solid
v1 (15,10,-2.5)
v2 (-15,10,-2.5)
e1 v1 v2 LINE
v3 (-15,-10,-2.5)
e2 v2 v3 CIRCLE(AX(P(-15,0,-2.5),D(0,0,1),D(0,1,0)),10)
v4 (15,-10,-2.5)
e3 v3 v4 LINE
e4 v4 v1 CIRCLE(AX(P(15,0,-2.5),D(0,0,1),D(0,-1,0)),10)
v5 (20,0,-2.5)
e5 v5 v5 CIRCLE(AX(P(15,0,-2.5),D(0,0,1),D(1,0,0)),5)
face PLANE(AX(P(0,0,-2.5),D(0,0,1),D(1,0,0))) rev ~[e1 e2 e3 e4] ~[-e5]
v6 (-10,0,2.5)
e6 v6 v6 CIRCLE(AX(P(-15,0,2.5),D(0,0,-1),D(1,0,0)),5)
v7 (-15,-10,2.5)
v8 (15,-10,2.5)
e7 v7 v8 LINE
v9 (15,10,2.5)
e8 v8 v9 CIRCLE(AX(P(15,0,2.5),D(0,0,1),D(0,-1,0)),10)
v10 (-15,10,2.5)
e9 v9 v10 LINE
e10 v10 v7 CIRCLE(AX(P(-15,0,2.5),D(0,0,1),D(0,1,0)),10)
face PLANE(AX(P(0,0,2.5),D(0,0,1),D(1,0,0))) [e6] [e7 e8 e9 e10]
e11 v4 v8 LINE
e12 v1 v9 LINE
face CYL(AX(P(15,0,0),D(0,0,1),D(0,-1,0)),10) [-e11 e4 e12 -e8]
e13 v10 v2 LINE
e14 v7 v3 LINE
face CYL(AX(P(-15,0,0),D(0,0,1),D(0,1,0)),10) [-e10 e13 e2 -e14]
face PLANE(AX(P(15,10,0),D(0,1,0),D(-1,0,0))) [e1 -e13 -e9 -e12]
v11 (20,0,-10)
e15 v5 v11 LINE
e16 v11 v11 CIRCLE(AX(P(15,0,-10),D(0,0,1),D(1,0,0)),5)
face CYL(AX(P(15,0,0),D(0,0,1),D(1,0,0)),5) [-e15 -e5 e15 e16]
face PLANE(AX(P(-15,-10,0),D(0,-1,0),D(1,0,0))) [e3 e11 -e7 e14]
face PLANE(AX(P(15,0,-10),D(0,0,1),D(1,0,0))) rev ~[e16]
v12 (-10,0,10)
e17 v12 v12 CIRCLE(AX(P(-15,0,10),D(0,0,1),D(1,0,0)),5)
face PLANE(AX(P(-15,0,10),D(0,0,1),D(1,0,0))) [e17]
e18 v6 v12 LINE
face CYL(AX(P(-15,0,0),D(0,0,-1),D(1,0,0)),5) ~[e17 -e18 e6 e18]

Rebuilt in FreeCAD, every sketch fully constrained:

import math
import FreeCAD as App
import Part
import Sketcher

V = App.Vector

doc = App.newDocument("Part")
body = doc.addObject("PartDesign::Body", "Body")

# Sketch on XY plane
sketch1 = body.newObject("Sketcher::SketchObject", "Sketch")
sketch1.AttachmentSupport = (doc.getObject("XY_Plane"), [""])
sketch1.MapMode = "FlatFace"
sketch1.addGeometry([
    Part.LineSegment(V(-15, -10, 0), V(15, -10, 0)),
    Part.ArcOfCircle(Part.Circle(V(15, 0, 0), V(0, 0, 1), 10), math.radians(-90), math.radians(90)),
    Part.LineSegment(V(15, 10, 0), V(-15, 10, 0)),
    Part.ArcOfCircle(Part.Circle(V(-15, 0, 0), V(0, 0, 1), 10), math.radians(90), math.radians(270)),
], False)
sketch1.addConstraint([
    Sketcher.Constraint("Tangent", 0, 2, 1, 1),
    Sketcher.Constraint("Tangent", 1, 2, 2, 1),
    Sketcher.Constraint("Tangent", 2, 2, 3, 1),
    Sketcher.Constraint("Tangent", 3, 2, 0, 1),
    Sketcher.Constraint("Horizontal", 0),
    Sketcher.Constraint("Horizontal", 2),
    Sketcher.Constraint("Symmetric", 1, 3, 3, 3, -1, 1),
    Sketcher.Constraint("Radius", 1, 10.0),
    Sketcher.Constraint("DistanceX", 0, 1, 0, 2, 30.0),
])
pad1 = body.newObject("PartDesign::Pad", "Pad")
pad1.Profile = sketch1
pad1.Length = 5
pad1.Midplane = True

# Sketch on XY plane
sketch2 = body.newObject("Sketcher::SketchObject", "Sketch001")
sketch2.AttachmentSupport = (doc.getObject("XY_Plane"), [""])
sketch2.MapMode = "FlatFace"
sketch2.addGeometry(Part.Circle(V(-15, 0, 0), V(0, 0, 1), 5), False)
sketch2.addConstraint([
    Sketcher.Constraint("PointOnObject", 0, 3, -1),
    Sketcher.Constraint("Diameter", 0, 10.0),
    Sketcher.Constraint("DistanceX", 0, 3, -1, 1, 15.0),
])
pad2 = body.newObject("PartDesign::Pad", "Pad001")
pad2.Profile = sketch2
pad2.Length = 10

# Sketch on XY plane
sketch3 = body.newObject("Sketcher::SketchObject", "Sketch002")
sketch3.AttachmentSupport = (doc.getObject("XY_Plane"), [""])
sketch3.MapMode = "FlatFace"
sketch3.addGeometry(Part.Circle(V(15, 0, 0), V(0, 0, 1), 5), False)
sketch3.addConstraint([
    Sketcher.Constraint("PointOnObject", 0, 3, -1),
    Sketcher.Constraint("Diameter", 0, 10.0),
    Sketcher.Constraint("DistanceX", -1, 1, 0, 3, 15.0),
])
pad3 = body.newObject("PartDesign::Pad", "Pad002")
pad3.Profile = sketch3
pad3.Length = 10
pad3.Reversed = True

doc.recompute()
